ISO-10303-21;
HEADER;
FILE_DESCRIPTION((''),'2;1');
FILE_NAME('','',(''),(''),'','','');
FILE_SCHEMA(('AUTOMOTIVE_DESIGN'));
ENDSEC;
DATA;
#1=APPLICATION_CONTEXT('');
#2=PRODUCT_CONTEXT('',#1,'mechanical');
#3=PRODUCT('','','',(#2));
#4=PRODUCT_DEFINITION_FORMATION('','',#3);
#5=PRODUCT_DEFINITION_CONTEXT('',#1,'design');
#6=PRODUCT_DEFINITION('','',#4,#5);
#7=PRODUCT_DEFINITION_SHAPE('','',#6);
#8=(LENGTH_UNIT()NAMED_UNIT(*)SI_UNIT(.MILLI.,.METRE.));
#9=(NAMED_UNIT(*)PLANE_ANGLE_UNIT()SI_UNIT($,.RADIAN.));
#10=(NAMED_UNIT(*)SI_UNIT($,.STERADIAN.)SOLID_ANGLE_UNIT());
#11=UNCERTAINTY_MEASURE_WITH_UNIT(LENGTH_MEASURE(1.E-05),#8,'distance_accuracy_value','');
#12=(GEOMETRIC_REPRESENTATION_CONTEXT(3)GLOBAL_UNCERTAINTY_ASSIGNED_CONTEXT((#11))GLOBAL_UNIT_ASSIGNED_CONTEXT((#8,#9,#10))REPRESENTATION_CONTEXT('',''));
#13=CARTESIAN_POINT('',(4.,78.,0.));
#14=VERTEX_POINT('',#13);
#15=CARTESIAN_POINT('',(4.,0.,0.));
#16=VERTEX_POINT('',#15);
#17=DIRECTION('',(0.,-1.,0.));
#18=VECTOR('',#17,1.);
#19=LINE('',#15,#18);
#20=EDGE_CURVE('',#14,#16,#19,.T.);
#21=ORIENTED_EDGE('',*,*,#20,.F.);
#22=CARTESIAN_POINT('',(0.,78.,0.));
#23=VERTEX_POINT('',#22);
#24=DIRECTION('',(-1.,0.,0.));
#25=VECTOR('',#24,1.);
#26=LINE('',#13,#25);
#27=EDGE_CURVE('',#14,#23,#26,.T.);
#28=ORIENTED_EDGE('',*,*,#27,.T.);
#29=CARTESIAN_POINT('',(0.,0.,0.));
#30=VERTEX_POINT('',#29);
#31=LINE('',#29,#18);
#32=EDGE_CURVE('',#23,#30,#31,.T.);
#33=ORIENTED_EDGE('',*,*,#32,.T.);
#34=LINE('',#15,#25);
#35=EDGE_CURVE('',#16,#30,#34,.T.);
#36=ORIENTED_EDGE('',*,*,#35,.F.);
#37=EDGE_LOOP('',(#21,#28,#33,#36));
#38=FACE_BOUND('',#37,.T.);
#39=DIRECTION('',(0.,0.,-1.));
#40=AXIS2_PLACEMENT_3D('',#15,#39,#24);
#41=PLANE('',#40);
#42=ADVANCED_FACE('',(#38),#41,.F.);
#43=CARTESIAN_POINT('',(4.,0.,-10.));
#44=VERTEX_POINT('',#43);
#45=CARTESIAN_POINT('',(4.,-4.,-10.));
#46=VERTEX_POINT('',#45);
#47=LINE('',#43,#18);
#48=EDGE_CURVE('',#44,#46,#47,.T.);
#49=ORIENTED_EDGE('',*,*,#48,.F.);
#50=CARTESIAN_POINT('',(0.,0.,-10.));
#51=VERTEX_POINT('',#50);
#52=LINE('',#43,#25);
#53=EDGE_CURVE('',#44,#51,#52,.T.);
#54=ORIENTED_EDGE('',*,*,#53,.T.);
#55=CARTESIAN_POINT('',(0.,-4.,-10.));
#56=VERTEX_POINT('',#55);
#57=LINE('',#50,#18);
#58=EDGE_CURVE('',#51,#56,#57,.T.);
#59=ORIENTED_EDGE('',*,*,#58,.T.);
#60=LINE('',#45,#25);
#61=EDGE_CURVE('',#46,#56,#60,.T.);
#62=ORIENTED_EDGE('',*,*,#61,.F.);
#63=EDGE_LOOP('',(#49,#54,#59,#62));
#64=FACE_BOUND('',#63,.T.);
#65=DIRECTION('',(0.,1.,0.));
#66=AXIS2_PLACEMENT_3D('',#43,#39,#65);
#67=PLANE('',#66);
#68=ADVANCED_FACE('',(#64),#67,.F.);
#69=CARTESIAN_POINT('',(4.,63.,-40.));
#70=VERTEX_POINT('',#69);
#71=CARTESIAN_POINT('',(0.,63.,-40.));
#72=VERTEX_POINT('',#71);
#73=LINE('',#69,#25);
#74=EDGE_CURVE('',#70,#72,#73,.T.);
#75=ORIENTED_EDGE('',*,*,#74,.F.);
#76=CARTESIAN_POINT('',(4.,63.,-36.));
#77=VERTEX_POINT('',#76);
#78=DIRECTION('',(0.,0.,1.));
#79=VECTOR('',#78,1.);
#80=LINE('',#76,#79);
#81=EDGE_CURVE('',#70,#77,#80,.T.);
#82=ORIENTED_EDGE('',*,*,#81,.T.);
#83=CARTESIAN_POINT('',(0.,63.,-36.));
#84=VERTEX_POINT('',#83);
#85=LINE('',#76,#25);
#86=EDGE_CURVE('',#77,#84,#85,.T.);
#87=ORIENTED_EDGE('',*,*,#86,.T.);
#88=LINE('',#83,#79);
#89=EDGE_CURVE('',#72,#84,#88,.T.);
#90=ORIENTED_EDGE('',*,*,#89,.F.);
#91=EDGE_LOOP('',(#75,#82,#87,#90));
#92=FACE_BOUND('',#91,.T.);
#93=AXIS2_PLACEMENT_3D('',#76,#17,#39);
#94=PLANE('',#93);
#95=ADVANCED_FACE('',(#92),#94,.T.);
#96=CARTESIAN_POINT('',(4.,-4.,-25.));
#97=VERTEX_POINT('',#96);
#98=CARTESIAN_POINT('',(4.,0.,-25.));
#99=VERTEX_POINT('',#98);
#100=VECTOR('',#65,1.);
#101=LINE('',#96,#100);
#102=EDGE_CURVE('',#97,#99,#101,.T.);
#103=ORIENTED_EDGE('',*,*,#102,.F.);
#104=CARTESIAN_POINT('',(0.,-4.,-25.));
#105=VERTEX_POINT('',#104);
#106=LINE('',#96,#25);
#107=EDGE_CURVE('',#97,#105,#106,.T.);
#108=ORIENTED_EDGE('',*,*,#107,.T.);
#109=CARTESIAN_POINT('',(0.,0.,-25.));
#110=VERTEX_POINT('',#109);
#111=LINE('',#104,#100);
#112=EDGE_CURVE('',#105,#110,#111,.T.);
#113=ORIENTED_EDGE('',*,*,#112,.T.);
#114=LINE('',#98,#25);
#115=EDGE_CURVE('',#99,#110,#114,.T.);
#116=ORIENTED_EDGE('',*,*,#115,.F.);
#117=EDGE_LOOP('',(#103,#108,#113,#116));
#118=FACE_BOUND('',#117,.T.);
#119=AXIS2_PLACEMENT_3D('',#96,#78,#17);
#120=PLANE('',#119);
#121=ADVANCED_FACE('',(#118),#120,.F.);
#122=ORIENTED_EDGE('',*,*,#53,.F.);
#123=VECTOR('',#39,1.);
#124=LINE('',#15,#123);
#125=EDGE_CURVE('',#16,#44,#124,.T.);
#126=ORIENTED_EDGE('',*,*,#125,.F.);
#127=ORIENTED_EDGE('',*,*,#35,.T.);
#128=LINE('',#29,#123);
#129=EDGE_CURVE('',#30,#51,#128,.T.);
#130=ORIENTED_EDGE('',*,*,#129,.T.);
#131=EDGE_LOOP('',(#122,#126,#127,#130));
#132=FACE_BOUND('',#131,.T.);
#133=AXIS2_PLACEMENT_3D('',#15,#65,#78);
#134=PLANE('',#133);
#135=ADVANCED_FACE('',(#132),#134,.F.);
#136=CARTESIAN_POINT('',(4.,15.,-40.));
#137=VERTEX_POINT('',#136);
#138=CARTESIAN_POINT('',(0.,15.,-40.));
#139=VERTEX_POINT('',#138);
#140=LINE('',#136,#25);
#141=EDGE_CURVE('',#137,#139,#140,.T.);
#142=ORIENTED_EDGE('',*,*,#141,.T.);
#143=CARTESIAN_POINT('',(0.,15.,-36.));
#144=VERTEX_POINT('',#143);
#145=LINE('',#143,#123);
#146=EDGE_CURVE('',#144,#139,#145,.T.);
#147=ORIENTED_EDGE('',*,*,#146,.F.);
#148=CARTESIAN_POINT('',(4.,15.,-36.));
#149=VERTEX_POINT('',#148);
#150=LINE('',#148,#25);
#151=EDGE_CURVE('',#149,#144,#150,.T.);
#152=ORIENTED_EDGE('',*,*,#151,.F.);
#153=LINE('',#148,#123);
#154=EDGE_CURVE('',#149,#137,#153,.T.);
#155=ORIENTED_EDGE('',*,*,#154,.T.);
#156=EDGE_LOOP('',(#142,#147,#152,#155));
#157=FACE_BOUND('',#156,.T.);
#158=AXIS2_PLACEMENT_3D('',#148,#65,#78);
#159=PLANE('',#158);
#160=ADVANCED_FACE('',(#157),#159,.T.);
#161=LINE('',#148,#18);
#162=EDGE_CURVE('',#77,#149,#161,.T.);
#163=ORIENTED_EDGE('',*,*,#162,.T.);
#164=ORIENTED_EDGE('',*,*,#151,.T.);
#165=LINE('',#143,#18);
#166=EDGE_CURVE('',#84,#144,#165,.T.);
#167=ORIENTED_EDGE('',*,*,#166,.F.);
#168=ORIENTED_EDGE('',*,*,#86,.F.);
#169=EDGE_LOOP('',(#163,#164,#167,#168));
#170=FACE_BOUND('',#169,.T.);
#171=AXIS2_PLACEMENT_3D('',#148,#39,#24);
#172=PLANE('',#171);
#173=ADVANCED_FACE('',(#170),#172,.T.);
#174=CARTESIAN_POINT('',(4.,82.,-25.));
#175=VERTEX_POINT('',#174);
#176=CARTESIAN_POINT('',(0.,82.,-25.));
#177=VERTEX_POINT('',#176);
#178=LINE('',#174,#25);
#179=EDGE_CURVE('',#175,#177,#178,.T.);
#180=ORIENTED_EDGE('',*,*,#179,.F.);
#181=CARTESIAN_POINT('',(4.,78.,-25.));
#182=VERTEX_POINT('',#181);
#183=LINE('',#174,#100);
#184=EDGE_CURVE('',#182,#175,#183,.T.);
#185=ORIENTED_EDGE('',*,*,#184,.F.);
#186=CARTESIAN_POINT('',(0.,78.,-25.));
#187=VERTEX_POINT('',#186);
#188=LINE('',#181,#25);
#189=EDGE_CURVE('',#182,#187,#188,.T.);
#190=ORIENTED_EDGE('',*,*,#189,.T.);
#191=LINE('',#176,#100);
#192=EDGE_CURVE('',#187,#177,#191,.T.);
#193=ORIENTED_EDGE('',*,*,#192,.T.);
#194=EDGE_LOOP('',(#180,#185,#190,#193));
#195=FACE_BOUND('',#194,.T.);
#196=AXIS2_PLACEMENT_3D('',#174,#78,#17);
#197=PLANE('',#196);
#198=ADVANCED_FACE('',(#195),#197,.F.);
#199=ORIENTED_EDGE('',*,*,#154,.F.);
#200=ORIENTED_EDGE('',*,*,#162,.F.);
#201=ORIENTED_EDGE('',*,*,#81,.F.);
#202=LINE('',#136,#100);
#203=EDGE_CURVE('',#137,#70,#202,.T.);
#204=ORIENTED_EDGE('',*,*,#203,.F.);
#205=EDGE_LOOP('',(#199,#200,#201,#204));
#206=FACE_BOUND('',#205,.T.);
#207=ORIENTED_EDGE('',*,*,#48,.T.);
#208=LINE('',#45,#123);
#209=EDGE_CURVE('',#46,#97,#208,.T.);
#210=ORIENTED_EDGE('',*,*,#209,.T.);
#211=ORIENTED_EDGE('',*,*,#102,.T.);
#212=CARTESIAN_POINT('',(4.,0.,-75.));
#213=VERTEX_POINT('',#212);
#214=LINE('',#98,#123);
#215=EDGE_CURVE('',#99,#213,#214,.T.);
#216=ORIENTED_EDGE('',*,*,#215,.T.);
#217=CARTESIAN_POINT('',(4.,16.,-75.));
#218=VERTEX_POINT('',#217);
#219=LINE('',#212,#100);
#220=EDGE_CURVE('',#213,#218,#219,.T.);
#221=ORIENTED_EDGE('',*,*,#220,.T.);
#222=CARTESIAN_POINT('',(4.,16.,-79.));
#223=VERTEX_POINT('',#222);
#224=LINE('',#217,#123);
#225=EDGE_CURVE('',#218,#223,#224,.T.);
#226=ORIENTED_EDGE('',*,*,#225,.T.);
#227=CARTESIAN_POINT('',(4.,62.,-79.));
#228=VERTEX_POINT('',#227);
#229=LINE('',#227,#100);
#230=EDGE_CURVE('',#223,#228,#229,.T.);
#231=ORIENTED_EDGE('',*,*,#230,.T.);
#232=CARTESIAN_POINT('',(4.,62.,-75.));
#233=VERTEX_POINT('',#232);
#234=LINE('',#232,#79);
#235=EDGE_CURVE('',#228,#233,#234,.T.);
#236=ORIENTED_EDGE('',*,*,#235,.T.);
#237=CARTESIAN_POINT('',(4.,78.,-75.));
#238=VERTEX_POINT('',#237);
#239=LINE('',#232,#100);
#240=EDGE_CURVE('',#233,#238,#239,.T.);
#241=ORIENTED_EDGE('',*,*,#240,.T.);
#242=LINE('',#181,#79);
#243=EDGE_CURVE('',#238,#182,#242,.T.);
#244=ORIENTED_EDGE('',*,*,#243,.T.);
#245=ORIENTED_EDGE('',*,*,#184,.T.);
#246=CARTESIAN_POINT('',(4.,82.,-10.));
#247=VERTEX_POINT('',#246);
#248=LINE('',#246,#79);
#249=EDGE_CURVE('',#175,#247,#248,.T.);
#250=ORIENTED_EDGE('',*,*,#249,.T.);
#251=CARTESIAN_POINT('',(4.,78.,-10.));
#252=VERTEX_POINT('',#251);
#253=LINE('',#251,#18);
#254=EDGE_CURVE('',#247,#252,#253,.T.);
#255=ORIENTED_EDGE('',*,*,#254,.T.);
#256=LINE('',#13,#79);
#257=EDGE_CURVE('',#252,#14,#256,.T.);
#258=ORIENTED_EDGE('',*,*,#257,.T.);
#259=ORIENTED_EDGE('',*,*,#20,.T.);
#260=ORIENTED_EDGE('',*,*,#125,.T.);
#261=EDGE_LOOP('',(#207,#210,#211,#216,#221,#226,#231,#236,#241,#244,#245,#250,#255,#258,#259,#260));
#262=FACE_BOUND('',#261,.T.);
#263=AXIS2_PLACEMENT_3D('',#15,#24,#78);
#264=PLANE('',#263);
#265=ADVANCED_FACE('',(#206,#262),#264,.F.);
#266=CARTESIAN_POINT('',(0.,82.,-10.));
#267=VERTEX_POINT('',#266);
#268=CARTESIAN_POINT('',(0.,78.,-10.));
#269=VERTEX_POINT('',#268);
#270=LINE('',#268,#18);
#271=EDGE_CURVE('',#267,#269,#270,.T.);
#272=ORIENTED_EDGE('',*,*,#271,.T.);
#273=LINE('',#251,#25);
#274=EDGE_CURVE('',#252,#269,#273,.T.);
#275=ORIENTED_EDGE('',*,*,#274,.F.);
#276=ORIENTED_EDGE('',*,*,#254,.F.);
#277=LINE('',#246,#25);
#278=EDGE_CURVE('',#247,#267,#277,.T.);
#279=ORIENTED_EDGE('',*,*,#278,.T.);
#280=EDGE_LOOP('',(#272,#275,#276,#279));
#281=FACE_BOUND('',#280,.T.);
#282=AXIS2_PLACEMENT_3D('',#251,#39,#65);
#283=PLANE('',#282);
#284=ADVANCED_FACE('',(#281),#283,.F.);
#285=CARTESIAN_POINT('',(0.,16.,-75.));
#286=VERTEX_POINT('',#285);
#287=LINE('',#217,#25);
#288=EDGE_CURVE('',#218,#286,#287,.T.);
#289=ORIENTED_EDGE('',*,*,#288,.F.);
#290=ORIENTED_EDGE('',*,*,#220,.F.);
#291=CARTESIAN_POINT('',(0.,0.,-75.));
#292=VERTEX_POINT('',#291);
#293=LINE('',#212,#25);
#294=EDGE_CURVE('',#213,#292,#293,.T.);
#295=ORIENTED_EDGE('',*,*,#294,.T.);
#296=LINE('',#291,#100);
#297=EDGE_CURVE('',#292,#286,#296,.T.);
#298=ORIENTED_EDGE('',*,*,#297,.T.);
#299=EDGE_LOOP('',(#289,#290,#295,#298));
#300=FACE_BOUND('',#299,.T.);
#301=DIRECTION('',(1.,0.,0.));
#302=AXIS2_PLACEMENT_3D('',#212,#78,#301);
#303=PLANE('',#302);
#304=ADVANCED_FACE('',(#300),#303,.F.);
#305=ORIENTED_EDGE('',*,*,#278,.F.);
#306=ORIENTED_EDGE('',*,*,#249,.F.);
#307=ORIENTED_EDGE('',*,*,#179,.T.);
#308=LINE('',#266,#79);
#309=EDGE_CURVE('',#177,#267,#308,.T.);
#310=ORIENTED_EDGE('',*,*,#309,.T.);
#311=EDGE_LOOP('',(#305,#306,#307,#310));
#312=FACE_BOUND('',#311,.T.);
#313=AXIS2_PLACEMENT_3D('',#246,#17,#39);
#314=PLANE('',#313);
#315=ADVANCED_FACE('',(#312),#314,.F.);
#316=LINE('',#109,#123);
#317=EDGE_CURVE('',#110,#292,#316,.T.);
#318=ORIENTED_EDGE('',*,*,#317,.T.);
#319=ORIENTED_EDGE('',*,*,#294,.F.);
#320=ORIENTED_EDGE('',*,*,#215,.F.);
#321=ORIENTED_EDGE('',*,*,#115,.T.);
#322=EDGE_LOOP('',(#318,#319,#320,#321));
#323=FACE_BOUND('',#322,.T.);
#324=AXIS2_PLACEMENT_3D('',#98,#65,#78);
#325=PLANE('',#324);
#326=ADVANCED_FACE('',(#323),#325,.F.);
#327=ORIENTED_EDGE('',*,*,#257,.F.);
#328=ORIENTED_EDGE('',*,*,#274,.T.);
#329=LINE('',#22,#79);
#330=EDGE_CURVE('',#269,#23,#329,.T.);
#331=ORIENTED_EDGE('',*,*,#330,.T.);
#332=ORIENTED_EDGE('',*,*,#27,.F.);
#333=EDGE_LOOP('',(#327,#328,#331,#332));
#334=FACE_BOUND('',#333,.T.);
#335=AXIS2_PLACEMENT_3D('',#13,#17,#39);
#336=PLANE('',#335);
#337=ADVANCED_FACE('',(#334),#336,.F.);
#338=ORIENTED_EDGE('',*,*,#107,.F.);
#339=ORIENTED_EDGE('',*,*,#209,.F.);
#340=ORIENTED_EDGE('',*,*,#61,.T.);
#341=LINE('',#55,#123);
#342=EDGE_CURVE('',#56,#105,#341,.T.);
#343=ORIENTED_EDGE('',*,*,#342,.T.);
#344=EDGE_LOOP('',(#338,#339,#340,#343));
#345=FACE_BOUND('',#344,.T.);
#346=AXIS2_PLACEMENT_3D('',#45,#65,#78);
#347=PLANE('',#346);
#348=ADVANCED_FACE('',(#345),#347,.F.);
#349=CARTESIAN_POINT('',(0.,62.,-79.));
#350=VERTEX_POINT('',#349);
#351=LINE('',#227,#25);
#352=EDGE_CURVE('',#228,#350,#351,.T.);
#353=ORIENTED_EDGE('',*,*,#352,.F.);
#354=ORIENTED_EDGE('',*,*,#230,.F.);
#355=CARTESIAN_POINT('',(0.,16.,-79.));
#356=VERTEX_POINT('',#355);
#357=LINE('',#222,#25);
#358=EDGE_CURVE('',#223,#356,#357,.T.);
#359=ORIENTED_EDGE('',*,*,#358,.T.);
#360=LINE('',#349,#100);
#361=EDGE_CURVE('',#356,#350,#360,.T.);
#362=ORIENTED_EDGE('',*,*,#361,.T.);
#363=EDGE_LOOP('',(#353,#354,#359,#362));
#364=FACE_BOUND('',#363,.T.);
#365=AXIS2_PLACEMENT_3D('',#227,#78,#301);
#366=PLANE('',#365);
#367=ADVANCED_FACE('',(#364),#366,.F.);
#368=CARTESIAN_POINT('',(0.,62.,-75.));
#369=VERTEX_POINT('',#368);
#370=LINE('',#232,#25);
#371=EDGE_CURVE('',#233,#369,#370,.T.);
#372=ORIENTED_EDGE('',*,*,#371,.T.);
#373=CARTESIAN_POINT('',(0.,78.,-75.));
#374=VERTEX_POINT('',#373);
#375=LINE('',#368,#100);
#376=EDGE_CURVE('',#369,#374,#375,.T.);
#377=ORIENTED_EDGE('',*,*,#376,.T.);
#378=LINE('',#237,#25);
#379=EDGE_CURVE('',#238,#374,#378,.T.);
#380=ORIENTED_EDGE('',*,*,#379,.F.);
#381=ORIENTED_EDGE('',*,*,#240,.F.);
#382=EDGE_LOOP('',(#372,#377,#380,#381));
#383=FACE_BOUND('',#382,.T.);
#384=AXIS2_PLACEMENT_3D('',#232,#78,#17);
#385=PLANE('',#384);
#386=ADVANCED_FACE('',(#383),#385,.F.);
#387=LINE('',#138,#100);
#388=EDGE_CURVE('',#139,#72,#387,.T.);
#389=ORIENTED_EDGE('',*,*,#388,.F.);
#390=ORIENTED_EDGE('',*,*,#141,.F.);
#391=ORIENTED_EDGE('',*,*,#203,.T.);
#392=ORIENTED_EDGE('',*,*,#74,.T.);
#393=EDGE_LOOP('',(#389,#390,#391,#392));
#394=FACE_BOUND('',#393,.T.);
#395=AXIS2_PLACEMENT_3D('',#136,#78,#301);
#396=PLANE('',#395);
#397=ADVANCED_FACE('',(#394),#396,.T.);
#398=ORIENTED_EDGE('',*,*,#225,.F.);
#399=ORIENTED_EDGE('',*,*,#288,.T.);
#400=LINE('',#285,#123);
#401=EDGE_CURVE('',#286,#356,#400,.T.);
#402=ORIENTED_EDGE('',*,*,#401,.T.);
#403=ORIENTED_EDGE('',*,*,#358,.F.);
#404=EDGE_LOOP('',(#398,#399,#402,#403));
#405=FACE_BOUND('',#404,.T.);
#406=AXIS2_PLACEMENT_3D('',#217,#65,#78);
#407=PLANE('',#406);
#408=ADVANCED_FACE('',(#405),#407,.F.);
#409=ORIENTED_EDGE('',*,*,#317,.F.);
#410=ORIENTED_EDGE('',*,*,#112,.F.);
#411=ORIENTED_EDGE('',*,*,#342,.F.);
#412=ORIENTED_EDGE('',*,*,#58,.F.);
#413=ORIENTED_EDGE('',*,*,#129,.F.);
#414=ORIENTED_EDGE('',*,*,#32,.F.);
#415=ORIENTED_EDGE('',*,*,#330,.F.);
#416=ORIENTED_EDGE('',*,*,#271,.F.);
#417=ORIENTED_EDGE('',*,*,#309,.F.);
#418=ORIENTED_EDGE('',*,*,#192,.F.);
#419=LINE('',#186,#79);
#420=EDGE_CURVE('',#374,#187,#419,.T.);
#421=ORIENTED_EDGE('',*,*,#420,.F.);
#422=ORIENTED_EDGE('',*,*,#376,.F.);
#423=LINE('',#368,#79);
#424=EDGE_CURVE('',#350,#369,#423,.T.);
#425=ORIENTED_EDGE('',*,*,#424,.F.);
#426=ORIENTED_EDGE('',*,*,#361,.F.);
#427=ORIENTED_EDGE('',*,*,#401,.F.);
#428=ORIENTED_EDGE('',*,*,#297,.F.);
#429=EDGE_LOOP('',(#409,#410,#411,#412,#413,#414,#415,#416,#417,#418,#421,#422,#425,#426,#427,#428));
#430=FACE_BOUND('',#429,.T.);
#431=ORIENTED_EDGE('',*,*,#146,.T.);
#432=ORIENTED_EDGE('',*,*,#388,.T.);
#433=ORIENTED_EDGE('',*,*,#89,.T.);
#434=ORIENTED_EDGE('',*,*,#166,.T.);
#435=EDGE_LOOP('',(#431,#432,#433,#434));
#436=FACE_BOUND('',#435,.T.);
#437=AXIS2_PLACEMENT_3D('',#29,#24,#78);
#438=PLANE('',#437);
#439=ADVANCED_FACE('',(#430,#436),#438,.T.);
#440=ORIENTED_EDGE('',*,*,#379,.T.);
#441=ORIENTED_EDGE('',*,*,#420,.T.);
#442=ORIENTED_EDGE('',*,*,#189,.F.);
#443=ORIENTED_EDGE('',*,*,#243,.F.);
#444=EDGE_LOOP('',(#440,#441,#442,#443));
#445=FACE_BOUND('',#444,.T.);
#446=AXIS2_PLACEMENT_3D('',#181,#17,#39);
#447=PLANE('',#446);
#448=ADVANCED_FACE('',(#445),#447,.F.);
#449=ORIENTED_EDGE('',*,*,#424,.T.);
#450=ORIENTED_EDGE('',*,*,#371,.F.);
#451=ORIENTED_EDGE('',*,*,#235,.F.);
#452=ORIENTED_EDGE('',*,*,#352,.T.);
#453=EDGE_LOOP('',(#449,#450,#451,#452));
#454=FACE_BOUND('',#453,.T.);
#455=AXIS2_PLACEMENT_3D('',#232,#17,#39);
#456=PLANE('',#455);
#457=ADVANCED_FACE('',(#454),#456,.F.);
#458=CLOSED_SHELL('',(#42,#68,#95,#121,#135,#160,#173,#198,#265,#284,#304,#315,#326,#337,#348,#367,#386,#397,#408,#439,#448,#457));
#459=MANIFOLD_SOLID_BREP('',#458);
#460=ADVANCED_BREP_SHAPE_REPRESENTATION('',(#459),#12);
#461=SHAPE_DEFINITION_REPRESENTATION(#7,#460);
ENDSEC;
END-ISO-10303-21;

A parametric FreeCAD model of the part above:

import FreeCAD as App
import Part
import Sketcher
from FreeCAD import Vector
Q = App.Units.Quantity

doc = App.newDocument("Part")
body = doc.addObject("PartDesign::Body", "Body")

sketch1 = doc.addObject("Sketcher::SketchObject", "Sketch")
body.addObject(sketch1)
sketch1.AttachmentSupport = (doc.YZ_Plane, [""])
sketch1.MapMode = "FlatFace"
sketch1.addGeometry([
    Part.LineSegment(Vector(0, -10, 0), Vector(-4, -10, 0)),
    Part.LineSegment(Vector(-4, -10, 0), Vector(-4, -25, 0)),
    Part.LineSegment(Vector(-4, -25, 0), Vector(0, -25, 0)),
    Part.LineSegment(Vector(0, -25, 0), Vector(0, -75, 0)),
    Part.LineSegment(Vector(0, -75, 0), Vector(16, -75, 0)),
    Part.LineSegment(Vector(16, -75, 0), Vector(16, -79, 0)),
    Part.LineSegment(Vector(16, -79, 0), Vector(62, -79, 0)),
    Part.LineSegment(Vector(62, -79, 0), Vector(62, -75, 0)),
    Part.LineSegment(Vector(62, -75, 0), Vector(78, -75, 0)),
    Part.LineSegment(Vector(78, -75, 0), Vector(78, -25, 0)),
    Part.LineSegment(Vector(78, -25, 0), Vector(82, -25, 0)),
    Part.LineSegment(Vector(82, -25, 0), Vector(82, -10, 0)),
    Part.LineSegment(Vector(82, -10, 0), Vector(78, -10, 0)),
    Part.LineSegment(Vector(78, -10, 0), Vector(78, 0, 0)),
    Part.LineSegment(Vector(78, 0, 0), Vector(0, 0, 0)),
    Part.LineSegment(Vector(0, 0, 0), Vector(0, -10, 0)),
    Part.LineSegment(Vector(15, -40, 0), Vector(15, -36, 0)),
    Part.LineSegment(Vector(15, -36, 0), Vector(63, -36, 0)),
    Part.LineSegment(Vector(63, -36, 0), Vector(63, -40, 0)),
    Part.LineSegment(Vector(63, -40, 0), Vector(15, -40, 0)),
], False)
sketch1.addConstraint([
    Sketcher.Constraint("Coincident", 0, 2, 1, 1),
    Sketcher.Constraint("Coincident", 1, 2, 2, 1),
    Sketcher.Constraint("Coincident", 2, 2, 3, 1),
    Sketcher.Constraint("Coincident", 3, 2, 4, 1),
    Sketcher.Constraint("Coincident", 4, 2, 5, 1),
    Sketcher.Constraint("Coincident", 5, 2, 6, 1),
    Sketcher.Constraint("Coincident", 6, 2, 7, 1),
    Sketcher.Constraint("Coincident", 7, 2, 8, 1),
    Sketcher.Constraint("Coincident", 8, 2, 9, 1),
    Sketcher.Constraint("Coincident", 9, 2, 10, 1),
    Sketcher.Constraint("Coincident", 10, 2, 11, 1),
    Sketcher.Constraint("Coincident", 11, 2, 12, 1),
    Sketcher.Constraint("Coincident", 12, 2, 13, 1),
    Sketcher.Constraint("Coincident", 13, 2, 14, 1),
    Sketcher.Constraint("Coincident", 14, 2, 15, 1),
    Sketcher.Constraint("Coincident", 15, 2, 0, 1),
    Sketcher.Constraint("Coincident", 16, 2, 17, 1),
    Sketcher.Constraint("Coincident", 17, 2, 18, 1),
    Sketcher.Constraint("Coincident", 18, 2, 19, 1),
    Sketcher.Constraint("Coincident", 19, 2, 16, 1),
    Sketcher.Constraint("Horizontal", 0),
    Sketcher.Constraint("Vertical", 1),
    Sketcher.Constraint("Horizontal", 2),
    Sketcher.Constraint("Vertical", 3),
    Sketcher.Constraint("Horizontal", 4),
    Sketcher.Constraint("Vertical", 5),
    Sketcher.Constraint("Horizontal", 6),
    Sketcher.Constraint("Vertical", 7),
    Sketcher.Constraint("Horizontal", 8),
    Sketcher.Constraint("Vertical", 9),
    Sketcher.Constraint("Horizontal", 10),
    Sketcher.Constraint("Vertical", 11),
    Sketcher.Constraint("Horizontal", 12),
    Sketcher.Constraint("Vertical", 13),
    Sketcher.Constraint("Horizontal", 14),
    Sketcher.Constraint("Vertical", 15),
    Sketcher.Constraint("Vertical", 16),
    Sketcher.Constraint("Horizontal", 17),
    Sketcher.Constraint("Vertical", 18),
    Sketcher.Constraint("Horizontal", 19),
    Sketcher.Constraint("Coincident", 14, 2, -1, 1),
    Sketcher.Constraint("PointOnObject", 2, 2, -2),
    Sketcher.Constraint("Horizontal", 4, 2, 7, 2),
    Sketcher.Constraint("Horizontal", 2, 2, 9, 2),
    Sketcher.Constraint("Horizontal", 0, 2, 11, 2),
    Sketcher.Constraint("Vertical", 9, 2, 12, 2),
    Sketcher.Constraint("Equal", 4, 8),
    Sketcher.Constraint("Equal", 2, 10),
    Sketcher.Constraint("Equal", 12, 5),
    Sketcher.Constraint("Equal", 7, 16),
    Sketcher.Constraint("DistanceX", 0, 2, 0, 1, Q("4 mm")),
    Sketcher.Constraint("DistanceX", 4, 1, 4, 2, Q("16 mm")),
    Sketcher.Constraint("DistanceX", 6, 1, 6, 2, Q("46 mm")),
    Sketcher.Constraint("DistanceX", 17, 1, 17, 2, Q("48 mm")),
    Sketcher.Constraint("DistanceY", 1, 2, 1, 1, Q("15 mm")),
    Sketcher.Constraint("DistanceY", 3, 2, 3, 1, Q("50 mm")),
    Sketcher.Constraint("DistanceY", 13, 1, 13, 2, Q("10 mm")),
    Sketcher.Constraint("DistanceX", -1, 1, 16, 2, Q("15 mm")),
    Sketcher.Constraint("DistanceY", 16, 2, -1, 1, Q("36 mm")),
])
pad1 = doc.addObject("PartDesign::Pad", "Pad")
body.addObject(pad1)
pad1.Profile = sketch1
pad1.Length = 4

doc.recompute()
